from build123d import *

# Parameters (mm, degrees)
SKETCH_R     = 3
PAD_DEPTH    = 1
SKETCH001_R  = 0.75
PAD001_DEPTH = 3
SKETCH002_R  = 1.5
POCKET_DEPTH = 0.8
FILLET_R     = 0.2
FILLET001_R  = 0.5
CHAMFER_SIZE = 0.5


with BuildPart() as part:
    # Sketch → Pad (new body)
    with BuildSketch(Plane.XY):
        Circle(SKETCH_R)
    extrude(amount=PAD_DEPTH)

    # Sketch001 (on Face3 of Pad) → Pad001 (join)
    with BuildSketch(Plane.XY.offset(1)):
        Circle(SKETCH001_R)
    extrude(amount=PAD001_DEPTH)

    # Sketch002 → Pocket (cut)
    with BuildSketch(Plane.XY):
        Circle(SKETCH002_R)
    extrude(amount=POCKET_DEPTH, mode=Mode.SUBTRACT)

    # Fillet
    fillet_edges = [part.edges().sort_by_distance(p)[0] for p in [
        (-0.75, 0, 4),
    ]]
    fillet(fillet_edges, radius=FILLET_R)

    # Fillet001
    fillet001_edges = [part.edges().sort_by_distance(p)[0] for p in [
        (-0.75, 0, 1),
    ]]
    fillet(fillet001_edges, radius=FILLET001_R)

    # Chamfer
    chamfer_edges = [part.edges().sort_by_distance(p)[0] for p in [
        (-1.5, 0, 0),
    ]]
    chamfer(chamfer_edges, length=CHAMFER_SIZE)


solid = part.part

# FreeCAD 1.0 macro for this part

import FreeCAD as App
import Part
import Sketcher

V = App.Vector
Q = App.Units.Quantity


def edges_at(feature, points):
    """Names of the edges that pass closest to the given points."""
    edges = feature.Shape.Edges
    near = lambda p: min(range(len(edges)), key=lambda i: edges[i].distToShape(Part.Vertex(*p))[0])
    return sorted({f"Edge{near(p) + 1}" for p in points})

doc = App.newDocument("Part")
body = doc.addObject("PartDesign::Body", "Body")

sketch1 = body.newObject("Sketcher::SketchObject", "Sketch")
sketch1.AttachmentSupport = (doc.getObject("XY_Plane"), [""])
sketch1.MapMode = "FlatFace"
sketch1.addGeometry(Part.Circle(V(0, 0, 0), V(0, 0, 1), 3), False)
sketch1.addConstraint(Sketcher.Constraint("Coincident", 0, 3, -1, 1))
sketch1.addConstraint(Sketcher.Constraint("Diameter", 0, Q("6 mm")))
pad1 = body.newObject("PartDesign::Pad", "Pad")
pad1.Profile = sketch1
pad1.Length = 1

sketch2 = body.newObject("Sketcher::SketchObject", "Sketch001")
sketch2.AttachmentSupport = (doc.getObject("XY_Plane"), [""])
sketch2.MapMode = "FlatFace"
sketch2.AttachmentOffset = App.Placement(V(0, 0, 1), App.Rotation())
sketch2.addGeometry(Part.Circle(V(0, 0, 0), V(0, 0, 1), 0.75), False)
sketch2.addConstraint(Sketcher.Constraint("Coincident", 0, 3, -1, 1))
sketch2.addConstraint(Sketcher.Constraint("Diameter", 0, Q("1.5 mm")))
pad2 = body.newObject("PartDesign::Pad", "Pad001")
pad2.Profile = sketch2
pad2.Length = 3

sketch3 = body.newObject("Sketcher::SketchObject", "Sketch002")
sketch3.AttachmentSupport = (doc.getObject("XY_Plane"), [""])
sketch3.MapMode = "FlatFace"
sketch3.addGeometry(Part.Circle(V(0, 0, 0), V(0, 0, 1), 1.5), False)
sketch3.addConstraint(Sketcher.Constraint("Coincident", 0, 3, -1, 1))
sketch3.addConstraint(Sketcher.Constraint("Diameter", 0, Q("3 mm")))
pocket1 = body.newObject("PartDesign::Pocket", "Pocket")
pocket1.Profile = sketch3
pocket1.Length = 0.8
pocket1.Reversed = True
doc.recompute()

fillet = body.newObject("PartDesign::Fillet", "Fillet")
fillet.Base = (pocket1, edges_at(pocket1, [(-0.75, 0, 4)]))
fillet.Radius = 0.2
doc.recompute()

fillet2 = body.newObject("PartDesign::Fillet", "Fillet001")
fillet2.Base = (fillet, edges_at(fillet, [(-0.75, 0, 1)]))
fillet2.Radius = 0.5
doc.recompute()

chamfer = body.newObject("PartDesign::Chamfer", "Chamfer")
chamfer.Base = (fillet2, edges_at(fillet2, [(-1.5, 0, 0)]))
chamfer.Size = 0.5

doc.recompute()
